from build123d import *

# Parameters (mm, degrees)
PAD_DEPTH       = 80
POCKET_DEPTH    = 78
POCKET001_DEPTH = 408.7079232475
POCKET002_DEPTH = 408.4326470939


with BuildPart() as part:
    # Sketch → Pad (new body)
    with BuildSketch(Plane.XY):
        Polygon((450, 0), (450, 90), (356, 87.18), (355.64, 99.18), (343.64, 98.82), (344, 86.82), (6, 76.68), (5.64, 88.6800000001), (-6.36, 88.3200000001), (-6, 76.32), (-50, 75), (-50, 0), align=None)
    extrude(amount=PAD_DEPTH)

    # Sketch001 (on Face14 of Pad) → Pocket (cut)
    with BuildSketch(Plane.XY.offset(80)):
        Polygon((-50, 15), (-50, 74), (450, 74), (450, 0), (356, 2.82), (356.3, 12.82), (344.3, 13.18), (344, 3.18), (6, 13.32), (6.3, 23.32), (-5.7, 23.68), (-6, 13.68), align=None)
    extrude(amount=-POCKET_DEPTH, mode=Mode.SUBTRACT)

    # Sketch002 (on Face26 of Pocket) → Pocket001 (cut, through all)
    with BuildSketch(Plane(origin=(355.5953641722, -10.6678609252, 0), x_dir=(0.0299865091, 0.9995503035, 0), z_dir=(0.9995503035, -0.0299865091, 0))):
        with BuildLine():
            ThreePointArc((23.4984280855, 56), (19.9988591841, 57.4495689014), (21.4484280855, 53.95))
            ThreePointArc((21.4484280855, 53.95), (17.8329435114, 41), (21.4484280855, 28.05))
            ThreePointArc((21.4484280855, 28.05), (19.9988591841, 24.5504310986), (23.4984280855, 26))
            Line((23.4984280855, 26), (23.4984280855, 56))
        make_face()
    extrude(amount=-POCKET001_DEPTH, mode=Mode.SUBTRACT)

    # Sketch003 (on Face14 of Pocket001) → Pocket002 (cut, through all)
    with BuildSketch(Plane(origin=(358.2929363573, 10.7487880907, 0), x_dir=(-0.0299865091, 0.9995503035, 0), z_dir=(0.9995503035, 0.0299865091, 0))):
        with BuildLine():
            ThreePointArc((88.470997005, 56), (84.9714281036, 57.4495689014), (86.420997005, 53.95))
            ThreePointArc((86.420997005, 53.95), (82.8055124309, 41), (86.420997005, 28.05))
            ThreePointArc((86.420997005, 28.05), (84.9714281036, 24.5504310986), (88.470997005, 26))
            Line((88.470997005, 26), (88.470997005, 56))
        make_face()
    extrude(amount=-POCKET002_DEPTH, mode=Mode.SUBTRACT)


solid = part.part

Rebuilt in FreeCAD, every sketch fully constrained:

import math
import FreeCAD as App
import Part
import Sketcher

doc = App.newDocument("Part")
body = doc.addObject("PartDesign::Body", "Body")

# Sketch on XY plane
sketch1 = body.newObject("Sketcher::SketchObject", "Sketch")
sketch1.AttachmentSupport = (doc.getObject("XY_Plane"), [""])
sketch1.MapMode = "FlatFace"
sketch1.addGeometry([
    Part.LineSegment(App.Vector(450, 0, 0), App.Vector(450, 90, 0)),  # 0
    Part.LineSegment(App.Vector(450, 90, 0), App.Vector(356, 87.18, 0)),  # 1
    Part.LineSegment(App.Vector(356, 87.18, 0), App.Vector(355.64, 99.18, 0)),  # 2
    Part.LineSegment(App.Vector(355.64, 99.18, 0), App.Vector(343.64, 98.82, 0)),  # 3
    Part.LineSegment(App.Vector(343.64, 98.82, 0), App.Vector(344, 86.82, 0)),  # 4
    Part.LineSegment(App.Vector(344, 86.82, 0), App.Vector(6, 76.68, 0)),  # 5
    Part.LineSegment(App.Vector(6, 76.68, 0), App.Vector(5.64, 88.68, 0)),  # 6
    Part.LineSegment(App.Vector(5.64, 88.68, 0), App.Vector(-6.36, 88.32, 0)),  # 7
    Part.LineSegment(App.Vector(-6.36, 88.32, 0), App.Vector(-6, 76.32, 0)),  # 8
    Part.LineSegment(App.Vector(-6, 76.32, 0), App.Vector(-50, 75, 0)),  # 9
    Part.LineSegment(App.Vector(-50, 75, 0), App.Vector(-50, 0, 0)),  # 10
    Part.LineSegment(App.Vector(-50, 0, 0), App.Vector(450, 0, 0)),  # 11
], False)
sketch1.addConstraint([
    Sketcher.Constraint("Coincident", 0, 2, 1, 1),
    Sketcher.Constraint("Coincident", 1, 2, 2, 1),
    Sketcher.Constraint("Coincident", 2, 2, 3, 1),
    Sketcher.Constraint("Coincident", 3, 2, 4, 1),
    Sketcher.Constraint("Coincident", 4, 2, 5, 1),
    Sketcher.Constraint("Coincident", 5, 2, 6, 1),
    Sketcher.Constraint("Coincident", 6, 2, 7, 1),
    Sketcher.Constraint("Coincident", 7, 2, 8, 1),
    Sketcher.Constraint("Coincident", 8, 2, 9, 1),
    Sketcher.Constraint("Coincident", 9, 2, 10, 1),
    Sketcher.Constraint("Coincident", 10, 2, 11, 1),
    Sketcher.Constraint("Coincident", 11, 2, 0, 1),
    Sketcher.Constraint("Vertical", 0),
    Sketcher.Constraint("Vertical", 10),
    Sketcher.Constraint("Horizontal", 11),
    Sketcher.Constraint("PointOnObject", 10, 2, -1),
    Sketcher.Constraint("Perpendicular", 1, 2),
    Sketcher.Constraint("Perpendicular", 2, 3),
    Sketcher.Constraint("Perpendicular", 3, 4),
    Sketcher.Constraint("Perpendicular", 4, 5),
    Sketcher.Constraint("Perpendicular", 5, 6),
    Sketcher.Constraint("Perpendicular", 6, 7),
    Sketcher.Constraint("Perpendicular", 7, 8),
    Sketcher.Constraint("Perpendicular", 8, 9),
    Sketcher.Constraint("Equal", 2, 3),
    Sketcher.Constraint("Equal", 3, 4),
    Sketcher.Constraint("Equal", 4, 6),
    Sketcher.Constraint("Equal", 6, 7),
    Sketcher.Constraint("Equal", 7, 8),
    Sketcher.Constraint("DistanceX", 11, 1, 11, 2, 500.0),
    Sketcher.Constraint("DistanceY", 0, 1, 0, 2, 90.0),
    Sketcher.Constraint("DistanceY", 10, 2, 10, 1, 75.0),
    Sketcher.Constraint("DistanceX", -1, 1, 0, 2, 450.0),
    Sketcher.Constraint("DistanceX", -1, 1, 1, 2, 356.0),
    Sketcher.Constraint("DistanceX", -1, 1, 4, 2, 344.0),
    Sketcher.Constraint("DistanceX", -1, 1, 5, 2, 6.0),
])
pad1 = body.newObject("PartDesign::Pad", "Pad")
pad1.Profile = sketch1
pad1.Length = 80

# Sketch on XY plane
sketch2 = body.newObject("Sketcher::SketchObject", "Sketch001")
sketch2.AttachmentSupport = (doc.getObject("XY_Plane"), [""])
sketch2.MapMode = "FlatFace"
sketch2.AttachmentOffset = App.Placement(App.Vector(0, 0, 80), App.Rotation())
sketch2.addGeometry([
    Part.LineSegment(App.Vector(-50, 74, 0), App.Vector(-50, 15, 0)),  # 0
    Part.LineSegment(App.Vector(-50, 15, 0), App.Vector(-6, 13.68, 0)),  # 1
    Part.LineSegment(App.Vector(-6, 13.68, 0), App.Vector(-5.7, 23.68, 0)),  # 2
    Part.LineSegment(App.Vector(-5.7, 23.68, 0), App.Vector(6.3, 23.32, 0)),  # 3
    Part.LineSegment(App.Vector(6.3, 23.32, 0), App.Vector(6, 13.32, 0)),  # 4
    Part.LineSegment(App.Vector(6, 13.32, 0), App.Vector(344, 3.18, 0)),  # 5
    Part.LineSegment(App.Vector(344, 3.18, 0), App.Vector(344.3, 13.18, 0)),  # 6
    Part.LineSegment(App.Vector(344.3, 13.18, 0), App.Vector(356.3, 12.82, 0)),  # 7
    Part.LineSegment(App.Vector(356.3, 12.82, 0), App.Vector(356, 2.82, 0)),  # 8
    Part.LineSegment(App.Vector(356, 2.82, 0), App.Vector(450, 0, 0)),  # 9
    Part.LineSegment(App.Vector(450, 0, 0), App.Vector(450, 74, 0)),  # 10
    Part.LineSegment(App.Vector(450, 74, 0), App.Vector(-50, 74, 0)),  # 11
], False)
sketch2.addConstraint([
    Sketcher.Constraint("Coincident", 0, 2, 1, 1),
    Sketcher.Constraint("Coincident", 1, 2, 2, 1),
    Sketcher.Constraint("Coincident", 2, 2, 3, 1),
    Sketcher.Constraint("Coincident", 3, 2, 4, 1),
    Sketcher.Constraint("Coincident", 4, 2, 5, 1),
    Sketcher.Constraint("Coincident", 5, 2, 6, 1),
    Sketcher.Constraint("Coincident", 6, 2, 7, 1),
    Sketcher.Constraint("Coincident", 7, 2, 8, 1),
    Sketcher.Constraint("Coincident", 8, 2, 9, 1),
    Sketcher.Constraint("Coincident", 9, 2, 10, 1),
    Sketcher.Constraint("Coincident", 10, 2, 11, 1),
    Sketcher.Constraint("Coincident", 11, 2, 0, 1),
    Sketcher.Constraint("Vertical", 0),
    Sketcher.Constraint("Vertical", 10),
    Sketcher.Constraint("Horizontal", 11),
    Sketcher.Constraint("PointOnObject", 9, 2, -1),
    Sketcher.Constraint("Perpendicular", 1, 2),
    Sketcher.Constraint("Perpendicular", 2, 3),
    Sketcher.Constraint("Perpendicular", 3, 4),
    Sketcher.Constraint("Perpendicular", 4, 5),
    Sketcher.Constraint("Perpendicular", 5, 6),
    Sketcher.Constraint("Perpendicular", 6, 7),
    Sketcher.Constraint("Perpendicular", 7, 8),
    Sketcher.Constraint("Perpendicular", 8, 9),
    Sketcher.Constraint("Equal", 2, 4),
    Sketcher.Constraint("Equal", 4, 6),
    Sketcher.Constraint("Equal", 3, 7),
    Sketcher.Constraint("Equal", 6, 8),
    Sketcher.Constraint("DistanceX", 11, 2, 11, 1, 500.0),
    Sketcher.Constraint("DistanceY", 0, 2, 0, 1, 59.0),
    Sketcher.Constraint("DistanceY", 10, 1, 10, 2, 74.0),
    Sketcher.Constraint("DistanceX", 0, 2, -1, 1, 50.0),
    Sketcher.Constraint("DistanceX", 1, 2, -1, 1, 6.0),
    Sketcher.Constraint("DistanceX", -1, 1, 4, 2, 6.0),
    Sketcher.Constraint("DistanceX", -1, 1, 5, 2, 344.0),
    Sketcher.Constraint("DistanceY", 1, 2, 2, 2, 10.0),
])
pocket1 = body.newObject("PartDesign::Pocket", "Pocket")
pocket1.Profile = sketch2
pocket1.Length = 78

# Sketch on an angled plane
sketch3 = body.newObject("Sketcher::SketchObject", "Sketch002")
sketch3.Placement = App.Placement(App.Vector(355.595364, -10.667861, 0), App.Rotation(App.Vector(0.029986509, 0.999550304, 0), App.Vector(0, 0, 1.000000001), App.Vector(0.999550304, -0.029986509, 0), "ZXY"))
sketch3.addGeometry([
    Part.ArcOfCircle(Part.Circle(App.Vector(21.448428, 56, 0), App.Vector(0, 0, 1), 2.05), math.radians(0), math.radians(270)),
    Part.ArcOfCircle(Part.Circle(App.Vector(42.832944, 41, 0), App.Vector(0, 0, 1), 25), math.radians(148.801809), math.radians(211.198191)),
    Part.ArcOfCircle(Part.Circle(App.Vector(21.448428, 26, 0), App.Vector(0, 0, 1), 2.05), math.radians(90), math.radians(360)),
    Part.LineSegment(App.Vector(23.498428, 26, 0), App.Vector(23.498428, 56, 0)),
], False)
sketch3.addConstraint([
    Sketcher.Constraint("Coincident", 0, 2, 1, 1),
    Sketcher.Constraint("Coincident", 1, 2, 2, 1),
    Sketcher.Constraint("Tangent", 2, 2, 3, 1),
    Sketcher.Constraint("Tangent", 3, 2, 0, 1),
    Sketcher.Constraint("Vertical", 3),
    Sketcher.Constraint("Equal", 0, 2),
    Sketcher.Constraint("Vertical", 2, 3, 0, 2),
    Sketcher.Constraint("Vertical", 0, 2, 1, 2),
    Sketcher.Constraint("Radius", 1, 25.0),
    Sketcher.Constraint("DistanceY", 3, 1, 3, 2, 30.0),
    Sketcher.Constraint("Radius", 0, 2.05),
    Sketcher.Constraint("DistanceY", -1, 1, 0, 3, 56.0),
    Sketcher.Constraint("DistanceX", -1, 1, 0, 3, 21.448428),
])
pocket2 = body.newObject("PartDesign::Pocket", "Pocket001")
pocket2.Profile = sketch3
pocket2.Type = "ThroughAll"

# Sketch on an angled plane
sketch4 = body.newObject("Sketcher::SketchObject", "Sketch003")
sketch4.Placement = App.Placement(App.Vector(358.292936, 10.748788, 0), App.Rotation(App.Vector(-0.029986509, 0.999550304, 0), App.Vector(0, 0, 1.000000001), App.Vector(0.999550304, 0.029986509, 0), "ZXY"))
sketch4.addGeometry([
    Part.ArcOfCircle(Part.Circle(App.Vector(86.420997, 56, 0), App.Vector(0, 0, 1), 2.05), math.radians(0), math.radians(270)),
    Part.ArcOfCircle(Part.Circle(App.Vector(107.805513, 41, 0), App.Vector(0, 0, 1), 25), math.radians(148.801809), math.radians(211.198191)),
    Part.ArcOfCircle(Part.Circle(App.Vector(86.420997, 26, 0), App.Vector(0, 0, 1), 2.05), math.radians(90), math.radians(360)),
    Part.LineSegment(App.Vector(88.470997, 26, 0), App.Vector(88.470997, 56, 0)),
], False)
sketch4.addConstraint([
    Sketcher.Constraint("Coincident", 0, 2, 1, 1),
    Sketcher.Constraint("Coincident", 1, 2, 2, 1),
    Sketcher.Constraint("Tangent", 2, 2, 3, 1),
    Sketcher.Constraint("Tangent", 3, 2, 0, 1),
    Sketcher.Constraint("Vertical", 3),
    Sketcher.Constraint("Equal", 0, 2),
    Sketcher.Constraint("Vertical", 2, 3, 0, 2),
    Sketcher.Constraint("Vertical", 0, 2, 1, 2),
    Sketcher.Constraint("Radius", 1, 25.0),
    Sketcher.Constraint("DistanceY", 3, 1, 3, 2, 30.0),
    Sketcher.Constraint("Radius", 0, 2.05),
    Sketcher.Constraint("DistanceY", -1, 1, 0, 3, 56.0),
    Sketcher.Constraint("DistanceX", -1, 1, 0, 3, 86.420997),
])
pocket3 = body.newObject("PartDesign::Pocket", "Pocket002")
pocket3.Profile = sketch4
pocket3.Type = "ThroughAll"

doc.recompute()
